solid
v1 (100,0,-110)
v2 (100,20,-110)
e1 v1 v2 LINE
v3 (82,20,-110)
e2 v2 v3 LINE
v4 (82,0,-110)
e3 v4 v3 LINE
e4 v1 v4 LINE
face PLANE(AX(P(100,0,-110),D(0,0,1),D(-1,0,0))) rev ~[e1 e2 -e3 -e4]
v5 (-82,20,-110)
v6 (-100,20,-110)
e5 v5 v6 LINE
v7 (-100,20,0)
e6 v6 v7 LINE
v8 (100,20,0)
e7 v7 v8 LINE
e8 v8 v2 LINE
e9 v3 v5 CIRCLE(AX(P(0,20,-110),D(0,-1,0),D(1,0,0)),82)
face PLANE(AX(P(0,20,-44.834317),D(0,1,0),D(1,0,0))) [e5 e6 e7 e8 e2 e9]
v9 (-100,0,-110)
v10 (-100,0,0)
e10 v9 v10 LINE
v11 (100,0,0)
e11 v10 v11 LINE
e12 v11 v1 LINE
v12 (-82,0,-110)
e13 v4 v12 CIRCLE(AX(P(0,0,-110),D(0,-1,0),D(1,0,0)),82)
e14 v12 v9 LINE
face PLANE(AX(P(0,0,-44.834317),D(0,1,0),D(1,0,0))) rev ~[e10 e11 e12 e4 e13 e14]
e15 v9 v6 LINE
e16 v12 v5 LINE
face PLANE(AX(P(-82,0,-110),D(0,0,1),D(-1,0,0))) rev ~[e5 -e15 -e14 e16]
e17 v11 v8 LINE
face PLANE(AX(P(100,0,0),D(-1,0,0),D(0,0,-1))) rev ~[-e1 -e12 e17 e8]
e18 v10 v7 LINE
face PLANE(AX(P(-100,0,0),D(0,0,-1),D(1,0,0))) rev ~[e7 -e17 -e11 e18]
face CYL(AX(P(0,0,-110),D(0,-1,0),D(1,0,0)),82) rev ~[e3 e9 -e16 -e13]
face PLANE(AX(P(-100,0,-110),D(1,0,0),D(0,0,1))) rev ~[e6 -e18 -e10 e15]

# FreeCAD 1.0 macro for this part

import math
import FreeCAD as App
import Part
import Sketcher

V = App.Vector
Q = App.Units.Quantity

doc = App.newDocument("Part")
body = doc.addObject("PartDesign::Body", "Body")

# Sketch on XZ plane
sketch1 = body.newObject("Sketcher::SketchObject", "Sketch")
sketch1.AttachmentSupport = (doc.getObject("XZ_Plane"), [""])
sketch1.MapMode = "FlatFace"
sketch1.addGeometry([
    Part.LineSegment(V(-100, 0, 0), V(100, 0, 0)),  # 0
    Part.LineSegment(V(100, 0, 0), V(100, -110, 0)),  # 1
    Part.LineSegment(V(100, -110, 0), V(82, -110, 0)),  # 2
    Part.ArcOfCircle(Part.Circle(V(0, -110, 0), V(0, 0, 1), 82), math.radians(0), math.radians(180)),  # 3
    Part.LineSegment(V(-82, -110, 0), V(-100, -110, 0)),  # 4
    Part.LineSegment(V(-100, -110, 0), V(-100, 0, 0)),  # 5
], False)
sketch1.addConstraint([
    Sketcher.Constraint("Coincident", 0, 2, 1, 1),
    Sketcher.Constraint("Coincident", 1, 2, 2, 1),
    Sketcher.Constraint("Coincident", 2, 2, 3, 1),
    Sketcher.Constraint("Coincident", 3, 2, 4, 1),
    Sketcher.Constraint("Coincident", 4, 2, 5, 1),
    Sketcher.Constraint("Coincident", 5, 2, 0, 1),
    Sketcher.Constraint("Horizontal", 0),
    Sketcher.Constraint("Vertical", 1),
    Sketcher.Constraint("Horizontal", 2),
    Sketcher.Constraint("Horizontal", 4),
    Sketcher.Constraint("Vertical", 5),
    Sketcher.Constraint("Symmetric", 0, 2, 5, 2, -1, 1),
    Sketcher.Constraint("Symmetric", 2, 2, 3, 2, -2),
    Sketcher.Constraint("Horizontal", 3, 3, 1, 2),
    Sketcher.Constraint("Radius", 3, Q("82 mm")),
    Sketcher.Constraint("DistanceX", 0, 1, 0, 2, Q("200 mm")),
    Sketcher.Constraint("DistanceY", 1, 2, 1, 1, Q("110 mm")),
])
pad1 = body.newObject("PartDesign::Pad", "Pad")
pad1.Profile = sketch1
pad1.Length = 20
pad1.Reversed = True

doc.recompute()
